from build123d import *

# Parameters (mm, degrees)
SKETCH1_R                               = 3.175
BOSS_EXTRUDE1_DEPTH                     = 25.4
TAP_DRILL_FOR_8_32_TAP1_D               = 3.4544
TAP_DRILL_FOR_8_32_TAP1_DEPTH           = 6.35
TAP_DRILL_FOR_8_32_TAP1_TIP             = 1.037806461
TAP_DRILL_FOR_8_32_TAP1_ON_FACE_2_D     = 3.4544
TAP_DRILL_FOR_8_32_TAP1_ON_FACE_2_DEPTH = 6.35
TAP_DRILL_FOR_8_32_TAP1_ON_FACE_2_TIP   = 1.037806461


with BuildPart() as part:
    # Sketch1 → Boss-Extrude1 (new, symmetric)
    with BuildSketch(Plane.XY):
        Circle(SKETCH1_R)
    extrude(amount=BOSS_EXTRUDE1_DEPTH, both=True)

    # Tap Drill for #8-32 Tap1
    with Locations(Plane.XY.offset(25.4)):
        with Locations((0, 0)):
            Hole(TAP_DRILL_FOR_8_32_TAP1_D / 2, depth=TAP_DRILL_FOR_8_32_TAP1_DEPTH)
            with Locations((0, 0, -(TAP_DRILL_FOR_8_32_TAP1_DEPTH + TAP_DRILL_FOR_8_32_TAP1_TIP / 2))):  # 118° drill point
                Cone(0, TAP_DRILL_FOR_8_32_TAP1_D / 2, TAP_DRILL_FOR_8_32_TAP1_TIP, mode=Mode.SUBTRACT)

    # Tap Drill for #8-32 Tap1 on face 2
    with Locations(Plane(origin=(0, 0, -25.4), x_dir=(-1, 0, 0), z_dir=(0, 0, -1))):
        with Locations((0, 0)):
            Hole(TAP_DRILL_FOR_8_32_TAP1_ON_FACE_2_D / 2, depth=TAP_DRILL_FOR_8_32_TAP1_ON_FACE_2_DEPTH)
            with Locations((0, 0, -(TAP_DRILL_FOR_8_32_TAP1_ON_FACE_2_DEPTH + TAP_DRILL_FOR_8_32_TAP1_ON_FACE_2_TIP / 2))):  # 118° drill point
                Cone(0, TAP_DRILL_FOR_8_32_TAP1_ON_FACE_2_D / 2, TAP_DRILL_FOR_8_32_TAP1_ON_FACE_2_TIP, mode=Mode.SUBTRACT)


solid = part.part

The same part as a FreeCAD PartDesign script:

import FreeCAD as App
import Part
import Sketcher
from FreeCAD import Vector
Q = App.Units.Quantity

doc = App.newDocument("Part")
body = doc.addObject("PartDesign::Body", "Body")

# Sketch on XY plane
sketch1 = doc.addObject("Sketcher::SketchObject", "Sketch")
body.addObject(sketch1)
sketch1.AttachmentSupport = (doc.XY_Plane, [""])
sketch1.MapMode = "FlatFace"
sketch1.addGeometry(Part.Circle(Vector(0, 0, 0), Vector(0, 0, 1), 3.175), False)
sketch1.addConstraint([
    Sketcher.Constraint("Coincident", 0, 3, -1, 1),
    Sketcher.Constraint("Diameter", 0, Q("0.25 in")),
])
pad1 = doc.addObject("PartDesign::Pad", "Pad")
body.addObject(pad1)
pad1.Profile = sketch1
pad1.Length = Q("2 in")
pad1.Midplane = True

# Sketch on XY plane
sketch2 = doc.addObject("Sketcher::SketchObject", "Sketch001")
body.addObject(sketch2)
sketch2.AttachmentSupport = (doc.XY_Plane, [""])
sketch2.MapMode = "FlatFace"
sketch2.AttachmentOffset = App.Placement(Vector(0, 0, 1 * 25.4), App.Rotation())
sketch2.addGeometry(Part.Circle(Vector(0, 0, 0), Vector(0, 0, 1), 1.7272), False)
sketch2.addConstraint([
    Sketcher.Constraint("Coincident", 0, 3, -1, 1),
    Sketcher.Constraint("Diameter", 0, Q("0.136 in")),
])
doc.recompute()
hole = doc.addObject("PartDesign::Hole", "Hole")
body.addObject(hole)
hole.Profile = sketch2
hole.ThreadType = "None"
hole.Diameter = Q("0.136 in")
hole.DepthType = "Dimension"
hole.Depth = Q("0.25 in")
hole.DrillPoint = "Angled"
hole.DrillPointAngle = 118

# Sketch on XY plane
sketch3 = doc.addObject("Sketcher::SketchObject", "Sketch002")
body.addObject(sketch3)
sketch3.AttachmentSupport = (doc.XY_Plane, [""])
sketch3.MapMode = "FlatFace"
sketch3.AttachmentOffset = App.Placement(Vector(0, 0, -1 * 25.4), App.Rotation())
sketch3.addGeometry(Part.Circle(Vector(0, 0, 0), Vector(0, 0, 1), 1.7272), False)
sketch3.addConstraint([
    Sketcher.Constraint("Coincident", 0, 3, -1, 1),
    Sketcher.Constraint("Diameter", 0, Q("0.136 in")),
])
doc.recompute()
hole2 = doc.addObject("PartDesign::Hole", "Hole001")
body.addObject(hole2)
hole2.Profile = sketch3
hole2.ThreadType = "None"
hole2.Diameter = Q("0.136 in")
hole2.DepthType = "Dimension"
hole2.Depth = Q("0.25 in")
hole2.DrillPoint = "Angled"
hole2.DrillPointAngle = 118
hole2.Reversed = True

doc.recompute()
